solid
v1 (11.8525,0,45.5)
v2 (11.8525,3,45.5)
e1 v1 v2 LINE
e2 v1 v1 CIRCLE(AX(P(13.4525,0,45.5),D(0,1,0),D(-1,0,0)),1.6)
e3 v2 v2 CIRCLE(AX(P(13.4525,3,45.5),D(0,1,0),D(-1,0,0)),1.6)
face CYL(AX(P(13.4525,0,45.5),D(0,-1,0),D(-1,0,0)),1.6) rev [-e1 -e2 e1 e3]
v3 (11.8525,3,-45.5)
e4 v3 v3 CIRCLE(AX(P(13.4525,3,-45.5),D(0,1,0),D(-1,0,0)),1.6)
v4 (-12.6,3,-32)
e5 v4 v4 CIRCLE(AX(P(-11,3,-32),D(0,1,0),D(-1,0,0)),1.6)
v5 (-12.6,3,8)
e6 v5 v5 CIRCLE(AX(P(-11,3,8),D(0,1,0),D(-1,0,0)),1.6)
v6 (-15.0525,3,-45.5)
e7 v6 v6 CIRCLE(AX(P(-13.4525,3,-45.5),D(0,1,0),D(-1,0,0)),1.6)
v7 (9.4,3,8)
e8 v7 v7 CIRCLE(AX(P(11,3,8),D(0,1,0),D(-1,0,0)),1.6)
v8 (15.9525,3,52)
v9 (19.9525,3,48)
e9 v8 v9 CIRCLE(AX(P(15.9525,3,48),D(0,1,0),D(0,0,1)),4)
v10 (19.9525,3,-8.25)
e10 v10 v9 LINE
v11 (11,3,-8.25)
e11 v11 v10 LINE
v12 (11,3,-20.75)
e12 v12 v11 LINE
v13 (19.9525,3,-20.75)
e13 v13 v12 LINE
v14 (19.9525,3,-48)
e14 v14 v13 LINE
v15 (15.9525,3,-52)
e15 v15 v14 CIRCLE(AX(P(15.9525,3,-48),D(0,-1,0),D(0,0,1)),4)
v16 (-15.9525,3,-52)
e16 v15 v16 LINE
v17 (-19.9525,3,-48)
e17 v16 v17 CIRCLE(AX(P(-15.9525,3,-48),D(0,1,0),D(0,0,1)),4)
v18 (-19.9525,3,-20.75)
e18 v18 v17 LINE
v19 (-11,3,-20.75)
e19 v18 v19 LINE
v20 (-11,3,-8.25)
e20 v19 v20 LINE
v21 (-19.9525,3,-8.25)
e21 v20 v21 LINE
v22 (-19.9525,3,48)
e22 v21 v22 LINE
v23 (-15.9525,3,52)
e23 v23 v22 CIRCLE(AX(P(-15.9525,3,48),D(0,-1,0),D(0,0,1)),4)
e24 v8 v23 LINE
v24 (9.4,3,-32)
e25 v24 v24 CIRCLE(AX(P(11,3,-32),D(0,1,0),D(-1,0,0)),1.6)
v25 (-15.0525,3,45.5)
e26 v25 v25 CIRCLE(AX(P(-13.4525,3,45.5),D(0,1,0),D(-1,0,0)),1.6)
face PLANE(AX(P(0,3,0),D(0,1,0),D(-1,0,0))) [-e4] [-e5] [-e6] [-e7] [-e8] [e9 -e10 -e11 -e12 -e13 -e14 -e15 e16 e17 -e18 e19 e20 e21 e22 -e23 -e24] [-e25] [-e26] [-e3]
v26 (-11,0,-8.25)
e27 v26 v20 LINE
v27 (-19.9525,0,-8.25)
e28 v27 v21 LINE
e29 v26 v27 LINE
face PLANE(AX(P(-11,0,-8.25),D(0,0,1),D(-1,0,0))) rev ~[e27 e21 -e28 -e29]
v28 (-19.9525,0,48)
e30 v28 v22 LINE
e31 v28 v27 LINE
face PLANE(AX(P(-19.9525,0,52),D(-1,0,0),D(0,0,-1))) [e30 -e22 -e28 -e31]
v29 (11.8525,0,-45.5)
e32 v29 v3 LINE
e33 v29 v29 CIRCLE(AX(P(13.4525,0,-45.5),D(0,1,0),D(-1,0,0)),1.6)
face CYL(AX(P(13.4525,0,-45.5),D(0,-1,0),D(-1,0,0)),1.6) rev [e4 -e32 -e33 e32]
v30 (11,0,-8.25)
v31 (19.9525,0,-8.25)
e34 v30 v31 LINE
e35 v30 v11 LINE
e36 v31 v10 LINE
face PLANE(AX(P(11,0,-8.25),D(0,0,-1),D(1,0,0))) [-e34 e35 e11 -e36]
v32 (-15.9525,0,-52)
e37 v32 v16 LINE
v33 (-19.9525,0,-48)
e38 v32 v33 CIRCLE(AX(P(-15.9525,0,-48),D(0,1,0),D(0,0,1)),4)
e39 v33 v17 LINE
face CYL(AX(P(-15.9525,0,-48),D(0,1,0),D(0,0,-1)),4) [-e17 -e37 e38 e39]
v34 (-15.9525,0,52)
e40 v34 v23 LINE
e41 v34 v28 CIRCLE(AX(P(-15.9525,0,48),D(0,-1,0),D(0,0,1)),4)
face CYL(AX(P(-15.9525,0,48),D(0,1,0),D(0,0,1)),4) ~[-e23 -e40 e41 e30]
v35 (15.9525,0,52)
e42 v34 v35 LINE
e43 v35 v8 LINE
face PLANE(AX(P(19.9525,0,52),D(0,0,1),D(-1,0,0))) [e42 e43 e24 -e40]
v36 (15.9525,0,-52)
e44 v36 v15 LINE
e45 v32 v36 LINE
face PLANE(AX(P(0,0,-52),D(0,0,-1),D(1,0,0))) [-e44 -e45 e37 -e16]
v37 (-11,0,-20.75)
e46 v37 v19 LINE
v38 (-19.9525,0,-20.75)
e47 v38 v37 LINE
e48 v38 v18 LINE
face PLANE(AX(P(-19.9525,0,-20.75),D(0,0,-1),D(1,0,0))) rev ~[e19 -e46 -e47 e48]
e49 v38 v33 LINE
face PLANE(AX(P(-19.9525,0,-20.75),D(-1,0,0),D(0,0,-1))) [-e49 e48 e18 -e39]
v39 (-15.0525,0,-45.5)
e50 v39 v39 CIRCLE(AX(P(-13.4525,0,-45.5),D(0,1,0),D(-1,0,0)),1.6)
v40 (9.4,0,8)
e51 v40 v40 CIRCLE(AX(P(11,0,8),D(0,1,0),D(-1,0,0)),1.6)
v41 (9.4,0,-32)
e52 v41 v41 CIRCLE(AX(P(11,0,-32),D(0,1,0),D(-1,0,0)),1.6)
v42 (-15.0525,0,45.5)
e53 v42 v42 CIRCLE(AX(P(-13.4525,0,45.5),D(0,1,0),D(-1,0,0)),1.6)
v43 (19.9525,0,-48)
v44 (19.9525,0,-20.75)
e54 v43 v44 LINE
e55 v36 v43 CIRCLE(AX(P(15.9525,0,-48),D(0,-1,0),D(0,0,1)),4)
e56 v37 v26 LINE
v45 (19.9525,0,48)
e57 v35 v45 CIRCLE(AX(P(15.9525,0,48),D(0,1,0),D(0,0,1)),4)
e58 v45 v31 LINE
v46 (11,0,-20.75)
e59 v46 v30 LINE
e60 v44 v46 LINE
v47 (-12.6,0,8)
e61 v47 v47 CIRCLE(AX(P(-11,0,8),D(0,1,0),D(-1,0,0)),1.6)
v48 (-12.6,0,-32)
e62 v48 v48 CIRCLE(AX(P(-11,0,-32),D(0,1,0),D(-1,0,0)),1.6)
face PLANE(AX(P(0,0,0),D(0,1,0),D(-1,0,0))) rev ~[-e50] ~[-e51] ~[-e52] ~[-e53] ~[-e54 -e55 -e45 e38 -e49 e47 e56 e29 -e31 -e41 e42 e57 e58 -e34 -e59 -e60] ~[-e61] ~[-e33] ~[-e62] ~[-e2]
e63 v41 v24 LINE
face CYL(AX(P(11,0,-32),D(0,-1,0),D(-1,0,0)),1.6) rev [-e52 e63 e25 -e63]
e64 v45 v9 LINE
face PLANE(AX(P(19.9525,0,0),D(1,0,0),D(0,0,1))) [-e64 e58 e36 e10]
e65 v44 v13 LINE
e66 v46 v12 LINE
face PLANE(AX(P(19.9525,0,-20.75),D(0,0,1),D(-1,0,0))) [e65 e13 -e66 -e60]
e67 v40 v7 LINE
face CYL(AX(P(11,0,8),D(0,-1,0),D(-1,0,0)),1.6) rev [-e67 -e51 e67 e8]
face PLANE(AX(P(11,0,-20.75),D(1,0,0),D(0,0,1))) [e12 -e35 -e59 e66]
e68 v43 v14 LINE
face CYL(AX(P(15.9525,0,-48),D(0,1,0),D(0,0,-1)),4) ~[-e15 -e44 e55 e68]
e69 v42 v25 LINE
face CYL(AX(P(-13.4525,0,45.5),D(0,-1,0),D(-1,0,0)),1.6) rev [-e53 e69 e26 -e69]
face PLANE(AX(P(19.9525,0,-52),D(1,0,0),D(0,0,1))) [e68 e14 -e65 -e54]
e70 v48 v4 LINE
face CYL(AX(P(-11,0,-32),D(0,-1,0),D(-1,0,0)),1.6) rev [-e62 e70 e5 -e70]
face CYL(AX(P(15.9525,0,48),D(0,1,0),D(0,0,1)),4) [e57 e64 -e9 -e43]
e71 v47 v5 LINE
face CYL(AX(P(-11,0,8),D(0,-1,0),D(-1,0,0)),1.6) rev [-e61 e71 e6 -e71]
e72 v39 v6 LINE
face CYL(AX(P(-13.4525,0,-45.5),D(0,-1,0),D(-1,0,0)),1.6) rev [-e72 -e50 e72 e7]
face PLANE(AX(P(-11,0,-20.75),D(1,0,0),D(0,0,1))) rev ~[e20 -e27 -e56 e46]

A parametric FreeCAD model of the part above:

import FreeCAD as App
import Part
import Sketcher
from FreeCAD import Vector


def edges_at(feature, points):
    """Names of the edges that pass closest to the given points."""
    edges = feature.Shape.Edges
    near = lambda p: min(range(len(edges)), key=lambda i: edges[i].distToShape(Part.Vertex(*p))[0])
    return sorted({f"Edge{near(p) + 1}" for p in points})


def add_polygon(sketch, points):
    """Adds a closed chain of lines whose ends are joined by coincident constraints."""
    first, n = sketch.GeometryCount, len(points)
    for a, b in zip(points, points[1:] + points[:1]):
        sketch.addGeometry(Part.LineSegment(App.Vector(*a, 0), App.Vector(*b, 0)), False)
    for i in range(n):
        sketch.addConstraint(Sketcher.Constraint("Coincident", first + i, 2, first + (i + 1) % n, 1))

doc = App.newDocument("Part")
body = doc.addObject("PartDesign::Body", "Body")

# Sketch on XZ plane
sketch1 = body.newObject("Sketcher::SketchObject", "Sketch")
sketch1.AttachmentSupport = (doc.getObject("XZ_Plane"), [""])
sketch1.MapMode = "FlatFace"
add_polygon(sketch1, [(20, 52), (20, -8.2), (11, -8.2), (11, -20.8), (20, -20.8), (20, -52), (-20, -52), (-20, -20.8), (-11, -20.8), (-11, -8.2), (-20, -8.2), (-20, 52)])  # lines 0-11
sketch1.addGeometry(Part.Circle(Vector(11, 8, 0), Vector(0, 0, 1), 1.6), False)  # 12
sketch1.addGeometry(Part.Circle(Vector(13.5, 45.5, 0), Vector(0, 0, 1), 1.6), False)  # 13
sketch1.addGeometry(Part.Circle(Vector(-13.5, 45.5, 0), Vector(0, 0, 1), 1.6), False)  # 14
sketch1.addGeometry(Part.Circle(Vector(-11, 8, 0), Vector(0, 0, 1), 1.6), False)  # 15
sketch1.addGeometry(Part.Circle(Vector(11, -32, 0), Vector(0, 0, 1), 1.6), False)  # 16
sketch1.addGeometry(Part.Circle(Vector(13.5, -45.5, 0), Vector(0, 0, 1), 1.6), False)  # 17
sketch1.addGeometry(Part.Circle(Vector(-11, -32, 0), Vector(0, 0, 1), 1.6), False)  # 18
sketch1.addGeometry(Part.Circle(Vector(-13.5, -45.5, 0), Vector(0, 0, 1), 1.6), False)  # 19
sketch1.addConstraint([
    Sketcher.Constraint("Vertical", 0),
    Sketcher.Constraint("Horizontal", 1),
    Sketcher.Constraint("Vertical", 2),
    Sketcher.Constraint("Horizontal", 3),
    Sketcher.Constraint("Vertical", 4),
    Sketcher.Constraint("Horizontal", 5),
    Sketcher.Constraint("Vertical", 6),
    Sketcher.Constraint("Horizontal", 7),
    Sketcher.Constraint("Vertical", 8),
    Sketcher.Constraint("Horizontal", 9),
    Sketcher.Constraint("Vertical", 10),
    Sketcher.Constraint("Horizontal", 11),
    Sketcher.Constraint("Equal", 12, 13),
    Sketcher.Constraint("Equal", 13, 14),
    Sketcher.Constraint("Equal", 14, 15),
    Sketcher.Constraint("Equal", 15, 16),
    Sketcher.Constraint("Equal", 16, 17),
    Sketcher.Constraint("Equal", 17, 18),
    Sketcher.Constraint("Equal", 18, 19),
    Sketcher.Constraint("Symmetric", 14, 3, 17, 3, -1, 1),
    Sketcher.Constraint("Symmetric", 13, 3, 19, 3, -1, 1),
    Sketcher.Constraint("Symmetric", 4, 2, 10, 2, -1, 1),
    Sketcher.Constraint("Symmetric", 13, 3, 14, 3, -2),
    Sketcher.Constraint("Symmetric", 12, 3, 15, 3, -2),
    Sketcher.Constraint("Symmetric", 16, 3, 18, 3, -2),
    Sketcher.Constraint("Symmetric", 3, 2, 6, 2, -2),
    Sketcher.Constraint("Symmetric", 1, 2, 8, 2, -2),
    Sketcher.Constraint("Vertical", 12, 3, 16, 3),
    Sketcher.Constraint("Vertical", 16, 3, 1, 2),
    Sketcher.Constraint("Vertical", 0, 2, 3, 2),
    Sketcher.Constraint("Diameter", 12, 3.2),
    Sketcher.Constraint("DistanceY", 2, 2, 2, 1, 12.5),
    Sketcher.Constraint("DistanceX", -1, 1, 12, 3, 11.0),
    Sketcher.Constraint("DistanceY", -1, 1, 12, 3, 8.0),
    Sketcher.Constraint("DistanceY", 16, 3, 12, 3, 40.0),
    Sketcher.Constraint("DistanceX", 17, 3, 0, 2, 6.5),
    Sketcher.Constraint("DistanceY", 4, 2, 17, 3, 6.5),
    Sketcher.Constraint("DistanceX", 5, 2, 5, 1, 39.905),
    Sketcher.Constraint("DistanceY", 0, 2, -1, 1, 8.25),
    Sketcher.Constraint("DistanceY", 4, 2, -1, 1, 52.0),
])
pad1 = body.newObject("PartDesign::Pad", "Pad")
pad1.Profile = sketch1
pad1.Length = 3
pad1.Reversed = True
doc.recompute()

fillet = body.newObject("PartDesign::Fillet", "Fillet")
fillet.Base = (pad1, edges_at(pad1, [
    (19.953, 1.5, 52),
    (-19.953, 1.5, 52),
    (19.953, 1.5, -52),
    (-19.953, 1.5, -52),
]))
fillet.Radius = 4

doc.recompute()
